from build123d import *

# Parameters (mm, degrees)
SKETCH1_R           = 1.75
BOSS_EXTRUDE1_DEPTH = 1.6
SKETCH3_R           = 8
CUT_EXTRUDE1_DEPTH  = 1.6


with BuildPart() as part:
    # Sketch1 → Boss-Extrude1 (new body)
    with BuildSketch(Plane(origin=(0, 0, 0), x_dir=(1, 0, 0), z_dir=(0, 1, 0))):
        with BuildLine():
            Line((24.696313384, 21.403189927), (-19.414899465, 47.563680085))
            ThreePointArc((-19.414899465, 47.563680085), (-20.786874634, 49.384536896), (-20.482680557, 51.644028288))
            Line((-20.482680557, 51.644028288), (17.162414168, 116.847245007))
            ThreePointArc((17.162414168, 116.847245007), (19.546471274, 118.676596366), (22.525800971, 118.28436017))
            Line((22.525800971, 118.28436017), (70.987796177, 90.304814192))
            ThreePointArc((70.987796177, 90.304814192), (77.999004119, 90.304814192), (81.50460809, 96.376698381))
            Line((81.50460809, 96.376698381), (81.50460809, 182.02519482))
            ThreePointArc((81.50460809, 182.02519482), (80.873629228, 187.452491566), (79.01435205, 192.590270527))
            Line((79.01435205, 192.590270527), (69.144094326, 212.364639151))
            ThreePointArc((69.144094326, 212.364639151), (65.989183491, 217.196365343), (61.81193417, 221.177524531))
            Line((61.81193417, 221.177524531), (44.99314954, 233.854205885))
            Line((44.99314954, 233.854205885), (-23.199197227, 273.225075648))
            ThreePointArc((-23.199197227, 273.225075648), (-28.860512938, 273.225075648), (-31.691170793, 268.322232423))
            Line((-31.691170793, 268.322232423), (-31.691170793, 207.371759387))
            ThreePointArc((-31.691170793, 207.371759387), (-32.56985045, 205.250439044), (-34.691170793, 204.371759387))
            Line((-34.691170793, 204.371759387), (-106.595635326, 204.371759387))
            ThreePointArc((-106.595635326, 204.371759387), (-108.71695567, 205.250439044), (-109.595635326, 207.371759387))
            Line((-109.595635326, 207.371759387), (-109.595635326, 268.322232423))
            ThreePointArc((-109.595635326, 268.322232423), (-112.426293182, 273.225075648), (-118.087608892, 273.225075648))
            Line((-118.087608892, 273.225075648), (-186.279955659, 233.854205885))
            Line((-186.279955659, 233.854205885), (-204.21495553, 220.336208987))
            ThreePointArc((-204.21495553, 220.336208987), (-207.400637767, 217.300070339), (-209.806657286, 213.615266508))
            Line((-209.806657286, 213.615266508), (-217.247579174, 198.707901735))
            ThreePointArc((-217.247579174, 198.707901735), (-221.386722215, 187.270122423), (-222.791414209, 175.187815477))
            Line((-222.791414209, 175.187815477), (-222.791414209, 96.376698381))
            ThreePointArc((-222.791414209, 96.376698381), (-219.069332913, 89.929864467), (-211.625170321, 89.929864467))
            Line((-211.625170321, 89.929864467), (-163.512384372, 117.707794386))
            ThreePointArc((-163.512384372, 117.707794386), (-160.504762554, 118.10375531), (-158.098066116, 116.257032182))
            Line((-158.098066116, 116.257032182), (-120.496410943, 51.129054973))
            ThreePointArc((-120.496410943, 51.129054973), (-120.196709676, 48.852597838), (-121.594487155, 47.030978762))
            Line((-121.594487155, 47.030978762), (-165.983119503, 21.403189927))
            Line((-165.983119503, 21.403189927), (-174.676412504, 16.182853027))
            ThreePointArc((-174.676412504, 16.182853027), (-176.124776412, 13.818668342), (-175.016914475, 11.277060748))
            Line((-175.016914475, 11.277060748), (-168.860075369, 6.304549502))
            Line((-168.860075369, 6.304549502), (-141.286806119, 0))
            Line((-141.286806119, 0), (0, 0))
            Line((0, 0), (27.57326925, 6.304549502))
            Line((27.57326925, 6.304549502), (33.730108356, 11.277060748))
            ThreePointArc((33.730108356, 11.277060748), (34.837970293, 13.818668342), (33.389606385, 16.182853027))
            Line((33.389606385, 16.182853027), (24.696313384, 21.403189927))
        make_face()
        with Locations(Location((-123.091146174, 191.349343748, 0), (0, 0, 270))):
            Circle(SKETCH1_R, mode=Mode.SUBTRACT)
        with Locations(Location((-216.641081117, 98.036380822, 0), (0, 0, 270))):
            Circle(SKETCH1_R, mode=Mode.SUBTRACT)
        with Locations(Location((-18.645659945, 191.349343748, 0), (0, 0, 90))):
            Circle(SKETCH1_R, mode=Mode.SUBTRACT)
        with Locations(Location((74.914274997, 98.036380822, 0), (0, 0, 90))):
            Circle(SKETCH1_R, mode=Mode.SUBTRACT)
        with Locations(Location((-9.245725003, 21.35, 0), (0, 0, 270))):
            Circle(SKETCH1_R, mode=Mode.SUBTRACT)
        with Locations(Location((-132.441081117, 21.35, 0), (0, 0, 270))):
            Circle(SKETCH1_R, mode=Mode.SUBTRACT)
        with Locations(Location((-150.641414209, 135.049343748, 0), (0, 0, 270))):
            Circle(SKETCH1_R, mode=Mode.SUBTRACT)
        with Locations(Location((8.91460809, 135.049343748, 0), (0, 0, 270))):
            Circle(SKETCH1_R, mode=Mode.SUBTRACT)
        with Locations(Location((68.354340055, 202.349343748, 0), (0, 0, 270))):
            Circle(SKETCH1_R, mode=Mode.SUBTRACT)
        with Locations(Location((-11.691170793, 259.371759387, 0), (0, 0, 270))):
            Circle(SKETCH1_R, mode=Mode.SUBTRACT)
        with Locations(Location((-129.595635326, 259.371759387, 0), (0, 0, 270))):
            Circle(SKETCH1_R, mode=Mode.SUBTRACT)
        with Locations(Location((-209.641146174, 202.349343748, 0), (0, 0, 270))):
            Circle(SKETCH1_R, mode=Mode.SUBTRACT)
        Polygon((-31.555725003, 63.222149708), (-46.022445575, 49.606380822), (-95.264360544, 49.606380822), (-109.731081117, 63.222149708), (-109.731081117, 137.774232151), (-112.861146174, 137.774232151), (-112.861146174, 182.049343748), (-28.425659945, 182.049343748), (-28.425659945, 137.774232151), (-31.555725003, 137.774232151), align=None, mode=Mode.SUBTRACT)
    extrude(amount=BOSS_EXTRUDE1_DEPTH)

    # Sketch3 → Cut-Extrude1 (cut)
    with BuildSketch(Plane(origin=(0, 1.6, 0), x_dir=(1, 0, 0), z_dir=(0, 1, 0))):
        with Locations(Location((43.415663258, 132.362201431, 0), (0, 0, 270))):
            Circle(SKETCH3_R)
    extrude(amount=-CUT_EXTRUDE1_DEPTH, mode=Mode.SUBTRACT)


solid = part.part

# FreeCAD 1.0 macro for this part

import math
import FreeCAD as App
import Part
import Sketcher
Q = App.Units.Quantity

doc = App.newDocument("Part")
body = doc.addObject("PartDesign::Body", "Body")

sketch1 = doc.addObject("Sketcher::SketchObject", "Sketch")
body.addObject(sketch1)
sketch1.AttachmentSupport = (doc.XZ_Plane, [""])
sketch1.MapMode = "FlatFace"
sketch1.addGeometry([
    Part.LineSegment(App.Vector(24.696313, -21.40319, 0), App.Vector(-19.414899, -47.56368, 0)),
    Part.ArcOfCircle(Part.Circle(App.Vector(-17.884604, -50.144028, 0), App.Vector(0, 0, 1), 3), math.radians(120.670383), math.radians(210)),
    Part.LineSegment(App.Vector(-20.482681, -51.644028, 0), App.Vector(17.162414, -116.847245, 0)),
    Part.ArcOfCircle(Part.Circle(App.Vector(20.562665, -114.884109, 0), App.Vector(0, 0, 1), 3.926272), math.radians(-150), math.radians(-60)),
    Part.LineSegment(App.Vector(22.525801, -118.28436, 0), App.Vector(70.987796, -90.304814, 0)),
    Part.ArcOfCircle(Part.Circle(App.Vector(74.4934, -96.376698, 0), App.Vector(0, 0, 1), 7.011208), math.radians(0), math.radians(120)),
    Part.LineSegment(App.Vector(81.504608, -96.376698, 0), App.Vector(81.504608, -182.025195, 0)),
    Part.ArcOfCircle(Part.Circle(App.Vector(57.847964, -182.025195, 0), App.Vector(0, 0, 1), 23.656644), math.radians(-26.525802), math.radians(0)),
    Part.LineSegment(App.Vector(79.014352, -192.590271, 0), App.Vector(69.144094, -212.364639, 0)),
    Part.ArcOfCircle(Part.Circle(App.Vector(46.741125, -201.182331, 0), App.Vector(0, 0, 1), 25.038711), math.radians(-52.993877), math.radians(-26.525802)),
    Part.LineSegment(App.Vector(61.811934, -221.177525, 0), App.Vector(44.99315, -233.854206, 0)),
    Part.LineSegment(App.Vector(44.99315, -233.854206, 0), App.Vector(-23.199197, -273.225076, 0)),
    Part.ArcOfCircle(Part.Circle(App.Vector(-26.029855, -268.322232, 0), App.Vector(0, 0, 1), 5.661316), math.radians(180), math.radians(300)),
    Part.LineSegment(App.Vector(-31.691171, -268.322232, 0), App.Vector(-31.691171, -207.371759, 0)),
    Part.ArcOfCircle(Part.Circle(App.Vector(-34.691171, -207.371759, 0), App.Vector(0, 0, 1), 3), math.radians(0), math.radians(90)),
    Part.LineSegment(App.Vector(-34.691171, -204.371759, 0), App.Vector(-106.595635, -204.371759, 0)),
    Part.ArcOfCircle(Part.Circle(App.Vector(-106.595635, -207.371759, 0), App.Vector(0, 0, 1), 3), math.radians(90), math.radians(180)),
    Part.LineSegment(App.Vector(-109.595635, -207.371759, 0), App.Vector(-109.595635, -268.322232, 0)),
    Part.ArcOfCircle(Part.Circle(App.Vector(-115.256951, -268.322232, 0), App.Vector(0, 0, 1), 5.661316), math.radians(-120), math.radians(0)),
    Part.LineSegment(App.Vector(-118.087609, -273.225076, 0), App.Vector(-186.279956, -233.854206, 0)),
    Part.LineSegment(App.Vector(-186.279956, -233.854206, 0), App.Vector(-204.214956, -220.336209, 0)),
    Part.ArcOfCircle(Part.Circle(App.Vector(-192.721553, -205.087339, 0), App.Vector(0, 0, 1), 19.095192), math.radians(-153.474198), math.radians(-127.006123)),
    Part.LineSegment(App.Vector(-209.806657, -213.615267, 0), App.Vector(-217.247579, -198.707902, 0)),
    Part.ArcOfCircle(Part.Circle(App.Vector(-170.126737, -175.187815, 0), App.Vector(0, 0, 1), 52.664677), math.radians(180), math.radians(206.525802)),
    Part.LineSegment(App.Vector(-222.791414, -175.187815, 0), App.Vector(-222.791414, -96.376698, 0)),
    Part.ArcOfCircle(Part.Circle(App.Vector(-215.347252, -96.376698, 0), App.Vector(0, 0, 1), 7.444163), math.radians(60), math.radians(180)),
    Part.LineSegment(App.Vector(-211.62517, -89.929864, 0), App.Vector(-163.512384, -117.707794, 0)),
    Part.ArcOfCircle(Part.Circle(App.Vector(-161.530606, -114.275254, 0), App.Vector(0, 0, 1), 3.963556), math.radians(-120), math.radians(-30)),
    Part.LineSegment(App.Vector(-158.098066, -116.257032, 0), App.Vector(-120.496411, -51.129055, 0)),
    Part.ArcOfCircle(Part.Circle(App.Vector(-123.094487, -49.629055, 0), App.Vector(0, 0, 1), 3), math.radians(-30), math.radians(60)),
    Part.LineSegment(App.Vector(-121.594487, -47.030979, 0), App.Vector(-165.98312, -21.40319, 0)),
    Part.LineSegment(App.Vector(-165.98312, -21.40319, 0), App.Vector(-174.676413, -16.182853, 0)),
    Part.ArcOfCircle(Part.Circle(App.Vector(-173.131977, -13.610944, 0), App.Vector(0, 0, 1), 3), math.radians(128.925739), math.radians(239.015114)),
    Part.LineSegment(App.Vector(-175.016914, -11.277061, 0), App.Vector(-168.860075, -6.30455, 0)),
    Part.LineSegment(App.Vector(-168.860075, -6.30455, 0), App.Vector(-141.286806, 0, 0)),
    Part.LineSegment(App.Vector(-141.286806, 0, 0), App.Vector(0, 0, 0)),
    Part.LineSegment(App.Vector(0, 0, 0), App.Vector(27.573269, -6.30455, 0)),
    Part.LineSegment(App.Vector(27.573269, -6.30455, 0), App.Vector(33.730108, -11.277061, 0)),
    Part.ArcOfCircle(Part.Circle(App.Vector(31.845171, -13.610944, 0), App.Vector(0, 0, 1), 3), math.radians(-59.015114), math.radians(51.074261)),
    Part.LineSegment(App.Vector(33.389606, -16.182853, 0), App.Vector(24.696313, -21.40319, 0)),
    Part.Circle(App.Vector(-132.441081, -21.35, 0), App.Vector(0, 0, 1), 1.75),
    Part.Circle(App.Vector(-216.641081, -98.036381, 0), App.Vector(0, 0, 1), 1.75),
    Part.Circle(App.Vector(-150.641414, -135.049344, 0), App.Vector(0, 0, 1), 1.75),
    Part.Circle(App.Vector(-9.245725, -21.35, 0), App.Vector(0, 0, 1), 1.75),
    Part.LineSegment(App.Vector(-31.555725, -137.774232, 0), App.Vector(-31.555725, -63.22215, 0)),
    Part.LineSegment(App.Vector(-31.555725, -63.22215, 0), App.Vector(-46.022446, -49.606381, 0)),
    Part.LineSegment(App.Vector(-46.022446, -49.606381, 0), App.Vector(-95.264361, -49.606381, 0)),
    Part.LineSegment(App.Vector(-95.264361, -49.606381, 0), App.Vector(-109.731081, -63.22215, 0)),
    Part.LineSegment(App.Vector(-109.731081, -63.22215, 0), App.Vector(-109.731081, -137.774232, 0)),
    Part.LineSegment(App.Vector(-109.731081, -137.774232, 0), App.Vector(-112.861146, -137.774232, 0)),
    Part.LineSegment(App.Vector(-112.861146, -137.774232, 0), App.Vector(-112.861146, -182.049344, 0)),
    Part.LineSegment(App.Vector(-112.861146, -182.049344, 0), App.Vector(-28.42566, -182.049344, 0)),
    Part.LineSegment(App.Vector(-28.42566, -182.049344, 0), App.Vector(-28.42566, -137.774232, 0)),
    Part.LineSegment(App.Vector(-28.42566, -137.774232, 0), App.Vector(-31.555725, -137.774232, 0)),
    Part.Circle(App.Vector(74.914275, -98.036381, 0), App.Vector(0, 0, 1), 1.75),
    Part.Circle(App.Vector(8.914608, -135.049344, 0), App.Vector(0, 0, 1), 1.75),
    Part.Circle(App.Vector(-123.091146, -191.349344, 0), App.Vector(0, 0, 1), 1.75),
    Part.Circle(App.Vector(-209.641146, -202.349344, 0), App.Vector(0, 0, 1), 1.75),
    Part.Circle(App.Vector(-129.595635, -259.371759, 0), App.Vector(0, 0, 1), 1.75),
    Part.Circle(App.Vector(-18.64566, -191.349344, 0), App.Vector(0, 0, 1), 1.75),
    Part.Circle(App.Vector(-11.691171, -259.371759, 0), App.Vector(0, 0, 1), 1.75),
    Part.Circle(App.Vector(68.35434, -202.349344, 0), App.Vector(0, 0, 1), 1.75),
], False)
sketch1.addConstraint([
    Sketcher.Constraint("Coincident", 0, 2, 1, 1),
    Sketcher.Constraint("Coincident", 1, 2, 2, 1),
    Sketcher.Constraint("Coincident", 2, 2, 3, 1),
    Sketcher.Constraint("Coincident", 3, 2, 4, 1),
    Sketcher.Constraint("Coincident", 4, 2, 5, 2),
    Sketcher.Constraint("Coincident", 5, 1, 6, 1),
    Sketcher.Constraint("Coincident", 6, 2, 7, 2),
    Sketcher.Constraint("Coincident", 7, 1, 8, 1),
    Sketcher.Constraint("Coincident", 8, 2, 9, 2),
    Sketcher.Constraint("Coincident", 9, 1, 10, 1),
    Sketcher.Constraint("Coincident", 10, 2, 11, 1),
    Sketcher.Constraint("Coincident", 11, 2, 12, 2),
    Sketcher.Constraint("Coincident", 12, 1, 13, 1),
    Sketcher.Constraint("Coincident", 13, 2, 14, 1),
    Sketcher.Constraint("Coincident", 14, 2, 15, 1),
    Sketcher.Constraint("Coincident", 15, 2, 16, 1),
    Sketcher.Constraint("Coincident", 16, 2, 17, 1),
    Sketcher.Constraint("Coincident", 17, 2, 18, 2),
    Sketcher.Constraint("Coincident", 18, 1, 19, 1),
    Sketcher.Constraint("Coincident", 19, 2, 20, 1),
    Sketcher.Constraint("Coincident", 20, 2, 21, 2),
    Sketcher.Constraint("Coincident", 21, 1, 22, 1),
    Sketcher.Constraint("Coincident", 22, 2, 23, 2),
    Sketcher.Constraint("Coincident", 23, 1, 24, 1),
    Sketcher.Constraint("Coincident", 24, 2, 25, 2),
    Sketcher.Constraint("Coincident", 25, 1, 26, 1),
    Sketcher.Constraint("Coincident", 26, 2, 27, 1),
    Sketcher.Constraint("Coincident", 27, 2, 28, 1),
    Sketcher.Constraint("Coincident", 28, 2, 29, 1),
    Sketcher.Constraint("Coincident", 29, 2, 30, 1),
    Sketcher.Constraint("Coincident", 30, 2, 31, 1),
    Sketcher.Constraint("Coincident", 31, 2, 32, 2),
    Sketcher.Constraint("Coincident", 32, 1, 33, 1),
    Sketcher.Constraint("Coincident", 33, 2, 34, 1),
    Sketcher.Constraint("Coincident", 34, 2, 35, 1),
    Sketcher.Constraint("Coincident", 35, 2, 36, 1),
    Sketcher.Constraint("Coincident", 36, 2, 37, 1),
    Sketcher.Constraint("Coincident", 37, 2, 38, 2),
    Sketcher.Constraint("Coincident", 38, 1, 39, 1),
    Sketcher.Constraint("Coincident", 39, 2, 0, 1),
    Sketcher.Constraint("Coincident", 44, 2, 45, 1),
    Sketcher.Constraint("Coincident", 45, 2, 46, 1),
    Sketcher.Constraint("Coincident", 46, 2, 47, 1),
    Sketcher.Constraint("Coincident", 47, 2, 48, 1),
    Sketcher.Constraint("Coincident", 48, 2, 49, 1),
    Sketcher.Constraint("Coincident", 49, 2, 50, 1),
    Sketcher.Constraint("Coincident", 50, 2, 51, 1),
    Sketcher.Constraint("Coincident", 51, 2, 52, 1),
    Sketcher.Constraint("Coincident", 52, 2, 53, 1),
    Sketcher.Constraint("Coincident", 53, 2, 44, 1),
    Sketcher.Constraint("Vertical", 6),
    Sketcher.Constraint("Vertical", 13),
    Sketcher.Constraint("Horizontal", 15),
    Sketcher.Constraint("Vertical", 17),
    Sketcher.Constraint("Vertical", 24),
    Sketcher.Constraint("Horizontal", 35),
    Sketcher.Constraint("Vertical", 44),
    Sketcher.Constraint("Horizontal", 46),
    Sketcher.Constraint("Vertical", 48),
    Sketcher.Constraint("Horizontal", 49),
    Sketcher.Constraint("Vertical", 50),
    Sketcher.Constraint("Horizontal", 51),
    Sketcher.Constraint("Vertical", 52),
    Sketcher.Constraint("Horizontal", 53),
    Sketcher.Constraint("Coincident", 35, 2, -1, 1),
    Sketcher.Constraint("Radius", 1, Q("3 mm")),
    Sketcher.Constraint("Radius", 14, Q("3 mm")),
    Sketcher.Constraint("Radius", 16, Q("3 mm")),
    Sketcher.Constraint("Radius", 29, Q("3 mm")),
    Sketcher.Constraint("Radius", 32, Q("3 mm")),
    Sketcher.Constraint("Radius", 38, Q("3 mm")),
    Sketcher.Constraint("Diameter", 40, Q("3.5 mm")),
    Sketcher.Constraint("Diameter", 41, Q("3.5 mm")),
    Sketcher.Constraint("Diameter", 42, Q("3.5 mm")),
    Sketcher.Constraint("Diameter", 43, Q("3.5 mm")),
    Sketcher.Constraint("Diameter", 54, Q("3.5 mm")),
    Sketcher.Constraint("Diameter", 55, Q("3.5 mm")),
    Sketcher.Constraint("Diameter", 56, Q("3.5 mm")),
    Sketcher.Constraint("Diameter", 57, Q("3.5 mm")),
    Sketcher.Constraint("Diameter", 58, Q("3.5 mm")),
    Sketcher.Constraint("Diameter", 59, Q("3.5 mm")),
    Sketcher.Constraint("Diameter", 60, Q("3.5 mm")),
    Sketcher.Constraint("Diameter", 61, Q("3.5 mm")),
    Sketcher.Constraint("DistanceY", 40, 3, -1, 1, Q("21.35 mm")),
    Sketcher.Constraint("DistanceY", 43, 3, -1, 1, Q("21.35 mm")),
    Sketcher.Constraint("Radius", 3, Q("3.926272 mm")),
    Sketcher.Constraint("Radius", 9, Q("25.038711 mm")),
    Sketcher.Constraint("Radius", 21, Q("19.095192 mm")),
    Sketcher.Constraint("Radius", 5, Q("7.011208 mm")),
    Sketcher.Constraint("Radius", 7, Q("23.656644 mm")),
    Sketcher.Constraint("Radius", 12, Q("5.661316 mm")),
    Sketcher.Constraint("Radius", 18, Q("5.661316 mm")),
    Sketcher.Constraint("Radius", 23, Q("52.664677 mm")),
    Sketcher.Constraint("Radius", 25, Q("7.444163 mm")),
    Sketcher.Constraint("Radius", 27, Q("3.963556 mm")),
    Sketcher.Constraint("DistanceY", 50, 2, 50, 1, Q("44.275112 mm")),
    Sketcher.Constraint("DistanceY", 52, 1, 52, 2, Q("44.275112 mm")),
    Sketcher.Constraint("DistanceX", -1, 1, 5, 3, Q("74.4934 mm")),
    Sketcher.Constraint("DistanceY", 5, 3, -1, 1, Q("96.376698 mm")),
    Sketcher.Constraint("DistanceY", 25, 3, -1, 1, Q("96.376698 mm")),
    Sketcher.Constraint("DistanceX", 0, 2, -1, 1, Q("19.414899 mm")),
    Sketcher.Constraint("DistanceX", -1, 1, 3, 2, Q("22.525801 mm")),
    Sketcher.Constraint("DistanceY", 5, 1, -1, 1, Q("96.376698 mm")),
    Sketcher.Constraint("DistanceY", 22, 2, -1, 1, Q("198.707902 mm")),
    Sketcher.Constraint("DistanceY", 24, 2, -1, 1, Q("96.376698 mm")),
    Sketcher.Constraint("Distance", 2, Q("75.290189 mm")),
    Sketcher.Constraint("Distance", 4, Q("55.959092 mm")),
    Sketcher.Constraint("Distance", 8, Q("22.100852 mm")),
    Sketcher.Constraint("Distance", 11, Q("78.74174 mm")),
    Sketcher.Constraint("Distance", 19, Q("78.74174 mm")),
    Sketcher.Constraint("Distance", 20, Q("22.458862 mm")),
    Sketcher.Constraint("Distance", 26, Q("55.55586 mm")),
    Sketcher.Constraint("Distance", 28, Q("75.20331 mm")),
    Sketcher.Constraint("Distance", 31, Q("10.140279 mm")),
    Sketcher.Constraint("Distance", 39, Q("10.140279 mm")),
    Sketcher.Constraint("DistanceX", 15, 2, 15, 1, Q("71.904465 mm")),
    Sketcher.Constraint("DistanceX", 35, 1, 35, 2, Q("141.286806 mm")),
    Sketcher.Constraint("DistanceX", 46, 2, 46, 1, Q("49.241915 mm")),
    Sketcher.Constraint("DistanceX", 49, 2, 49, 1, Q("3.130065 mm")),
    Sketcher.Constraint("DistanceX", 51, 1, 51, 2, Q("84.435486 mm")),
    Sketcher.Constraint("DistanceX", 53, 2, 53, 1, Q("3.130065 mm")),
    Sketcher.Constraint("DistanceY", 6, 2, 6, 1, Q("85.648496 mm")),
    Sketcher.Constraint("DistanceY", 13, 1, 13, 2, Q("60.950473 mm")),
    Sketcher.Constraint("DistanceY", 17, 2, 17, 1, Q("60.950473 mm")),
    Sketcher.Constraint("DistanceY", 24, 1, 24, 2, Q("78.811117 mm")),
    Sketcher.Constraint("DistanceY", 44, 1, 44, 2, Q("74.552082 mm")),
    Sketcher.Constraint("DistanceY", 48, 2, 48, 1, Q("74.552082 mm")),
    Sketcher.Constraint("DistanceY", 1, 3, -1, 1, Q("50.144028 mm")),
    Sketcher.Constraint("DistanceY", 3, 3, -1, 1, Q("114.884109 mm")),
    Sketcher.Constraint("DistanceY", 9, 3, -1, 1, Q("201.182331 mm")),
    Sketcher.Constraint("DistanceX", 14, 3, -1, 1, Q("34.691171 mm")),
    Sketcher.Constraint("DistanceY", 14, 3, -1, 1, Q("207.371759 mm")),
    Sketcher.Constraint("DistanceX", 18, 3, -1, 1, Q("115.256951 mm")),
    Sketcher.Constraint("DistanceY", 21, 3, -1, 1, Q("205.087339 mm")),
    Sketcher.Constraint("DistanceX", 25, 3, -1, 1, Q("215.347252 mm")),
    Sketcher.Constraint("DistanceX", -1, 1, 38, 3, Q("31.845171 mm")),
    Sketcher.Constraint("DistanceX", 40, 3, -1, 1, Q("132.441081 mm")),
    Sketcher.Constraint("DistanceX", 41, 3, -1, 1, Q("216.641081 mm")),
    Sketcher.Constraint("DistanceY", 41, 3, -1, 1, Q("98.036381 mm")),
    Sketcher.Constraint("DistanceY", 54, 3, -1, 1, Q("98.036381 mm")),
    Sketcher.Constraint("DistanceX", -1, 1, 55, 3, Q("8.914608 mm")),
    Sketcher.Constraint("DistanceY", 58, 3, -1, 1, Q("259.371759 mm")),
    Sketcher.Constraint("DistanceX", 59, 3, -1, 1, Q("18.64566 mm")),
    Sketcher.Constraint("DistanceX", 60, 3, -1, 1, Q("11.691171 mm")),
    Sketcher.Constraint("DistanceY", 60, 3, -1, 1, Q("259.371759 mm")),
    Sketcher.Constraint("DistanceX", -1, 1, 61, 3, Q("68.35434 mm")),
    Sketcher.Constraint("DistanceY", 0, 2, -1, 1, Q("47.56368 mm")),
    Sketcher.Constraint("DistanceX", 1, 2, -1, 1, Q("20.482681 mm")),
    Sketcher.Constraint("DistanceY", 3, 2, -1, 1, Q("118.28436 mm")),
    Sketcher.Constraint("DistanceY", 7, 1, -1, 1, Q("192.590271 mm")),
    Sketcher.Constraint("DistanceY", 8, 2, -1, 1, Q("212.364639 mm")),
    Sketcher.Constraint("DistanceX", -1, 1, 10, 2, Q("44.99315 mm")),
    Sketcher.Constraint("DistanceY", 13, 2, -1, 1, Q("207.371759 mm")),
    Sketcher.Constraint("DistanceX", 14, 2, -1, 1, Q("34.691171 mm")),
    Sketcher.Constraint("DistanceY", 16, 2, -1, 1, Q("207.371759 mm")),
    Sketcher.Constraint("DistanceX", 18, 1, -1, 1, Q("118.087609 mm")),
    Sketcher.Constraint("DistanceY", 20, 2, -1, 1, Q("220.336209 mm")),
    Sketcher.Constraint("DistanceX", 22, 2, -1, 1, Q("217.247579 mm")),
    Sketcher.Constraint("DistanceX", 25, 1, -1, 1, Q("211.62517 mm")),
    Sketcher.Constraint("DistanceX", 28, 2, -1, 1, Q("120.496411 mm")),
    Sketcher.Constraint("DistanceY", 29, 2, -1, 1, Q("47.030979 mm")),
    Sketcher.Constraint("DistanceX", 30, 2, -1, 1, Q("165.98312 mm")),
    Sketcher.Constraint("DistanceY", 30, 2, -1, 1, Q("21.40319 mm")),
    Sketcher.Constraint("DistanceY", 32, 1, -1, 1, Q("11.277061 mm")),
    Sketcher.Constraint("DistanceY", 33, 2, -1, 1, Q("6.30455 mm")),
    Sketcher.Constraint("DistanceX", -1, 1, 36, 2, Q("27.573269 mm")),
    Sketcher.Constraint("DistanceY", 36, 2, -1, 1, Q("6.30455 mm")),
    Sketcher.Constraint("DistanceX", -1, 1, 37, 2, Q("33.730108 mm")),
    Sketcher.Constraint("DistanceY", 37, 2, -1, 1, Q("11.277061 mm")),
    Sketcher.Constraint("DistanceY", 39, 2, -1, 1, Q("21.40319 mm")),
    Sketcher.Constraint("DistanceY", 44, 2, -1, 1, Q("63.22215 mm")),
    Sketcher.Constraint("DistanceY", 45, 2, -1, 1, Q("49.606381 mm")),
    Sketcher.Constraint("DistanceX", 46, 2, -1, 1, Q("95.264361 mm")),
    Sketcher.Constraint("DistanceX", 47, 2, -1, 1, Q("109.731081 mm")),
    Sketcher.Constraint("Distance", 0, Q("51.285186 mm")),
    Sketcher.Constraint("Distance", 10, Q("21.061096 mm")),
    Sketcher.Constraint("Distance", 22, Q("16.661238 mm")),
    Sketcher.Constraint("Distance", 30, Q("51.255578 mm")),
    Sketcher.Constraint("Distance", 33, Q("7.914072 mm")),
    Sketcher.Constraint("Distance", 34, Q("28.284846 mm")),
    Sketcher.Constraint("DistanceY", 7, 3, -1, 1, Q("182.025195 mm")),
    Sketcher.Constraint("DistanceY", 12, 3, -1, 1, Q("268.322232 mm")),
    Sketcher.Constraint("DistanceY", 18, 3, -1, 1, Q("268.322232 mm")),
    Sketcher.Constraint("DistanceX", 21, 3, -1, 1, Q("192.721553 mm")),
    Sketcher.Constraint("DistanceX", 27, 3, -1, 1, Q("161.530606 mm")),
    Sketcher.Constraint("DistanceY", 27, 3, -1, 1, Q("114.275254 mm")),
    Sketcher.Constraint("DistanceX", 29, 3, -1, 1, Q("123.094487 mm")),
    Sketcher.Constraint("DistanceX", 32, 3, -1, 1, Q("173.131977 mm")),
    Sketcher.Constraint("DistanceX", 42, 3, -1, 1, Q("150.641414 mm")),
    Sketcher.Constraint("DistanceY", 42, 3, -1, 1, Q("135.049344 mm")),
    Sketcher.Constraint("DistanceX", 43, 3, -1, 1, Q("9.245725 mm")),
    Sketcher.Constraint("DistanceX", -1, 1, 54, 3, Q("74.914275 mm")),
    Sketcher.Constraint("DistanceY", 55, 3, -1, 1, Q("135.049344 mm")),
    Sketcher.Constraint("DistanceX", 56, 3, -1, 1, Q("123.091146 mm")),
    Sketcher.Constraint("DistanceY", 56, 3, -1, 1, Q("191.349344 mm")),
    Sketcher.Constraint("DistanceX", 57, 3, -1, 1, Q("209.641146 mm")),
    Sketcher.Constraint("DistanceY", 57, 3, -1, 1, Q("202.349344 mm")),
    Sketcher.Constraint("DistanceX", 58, 3, -1, 1, Q("129.595635 mm")),
    Sketcher.Constraint("DistanceY", 59, 3, -1, 1, Q("191.349344 mm")),
    Sketcher.Constraint("DistanceY", 61, 3, -1, 1, Q("202.349344 mm")),
    Sketcher.Constraint("DistanceX", -1, 1, 9, 1, Q("61.811934 mm")),
])
pad1 = doc.addObject("PartDesign::Pad", "Pad")
body.addObject(pad1)
pad1.Profile = sketch1
pad1.Length = 1.6
pad1.Reversed = True

sketch2 = doc.addObject("Sketcher::SketchObject", "Sketch001")
body.addObject(sketch2)
sketch2.AttachmentSupport = (doc.XZ_Plane, [""])
sketch2.MapMode = "FlatFace"
sketch2.AttachmentOffset = App.Placement(App.Vector(0, 0, -1.6), App.Rotation())
sketch2.addGeometry(Part.Circle(App.Vector(43.415663, -132.362201, 0), App.Vector(0, 0, 1), 8), False)
sketch2.addConstraint([
    Sketcher.Constraint("Diameter", 0, Q("16 mm")),
    Sketcher.Constraint("DistanceY", 0, 3, -1, 1, Q("132.362201 mm")),
    Sketcher.Constraint("DistanceX", -1, 1, 0, 3, Q("43.415663 mm")),
])
pocket1 = doc.addObject("PartDesign::Pocket", "Pocket")
body.addObject(pocket1)
pocket1.Profile = sketch2
pocket1.Length = 1.6
pocket1.Reversed = True

doc.recompute()
